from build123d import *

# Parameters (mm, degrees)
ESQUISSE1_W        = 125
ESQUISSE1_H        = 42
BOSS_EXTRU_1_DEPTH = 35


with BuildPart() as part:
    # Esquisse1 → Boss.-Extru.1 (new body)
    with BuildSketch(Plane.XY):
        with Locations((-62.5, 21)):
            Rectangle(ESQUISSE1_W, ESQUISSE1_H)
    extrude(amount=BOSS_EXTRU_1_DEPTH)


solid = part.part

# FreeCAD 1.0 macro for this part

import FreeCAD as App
import Part
import Sketcher
Q = App.Units.Quantity


def add_polygon(sketch, points):
    """Adds a closed chain of lines whose ends are joined by coincident constraints."""
    first, n = sketch.GeometryCount, len(points)
    for a, b in zip(points, points[1:] + points[:1]):
        sketch.addGeometry(Part.LineSegment(App.Vector(*a, 0), App.Vector(*b, 0)), False)
    for i in range(n):
        sketch.addConstraint(Sketcher.Constraint("Coincident", first + i, 2, first + (i + 1) % n, 1))

doc = App.newDocument("Part")
body = doc.addObject("PartDesign::Body", "Body")

sketch1 = body.newObject("Sketcher::SketchObject", "Sketch")
sketch1.AttachmentSupport = (doc.getObject("XY_Plane"), [""])
sketch1.MapMode = "FlatFace"
add_polygon(sketch1, [(-125, 42), (-125, 0), (0, 0), (0, 42)])
sketch1.addConstraint([
    Sketcher.Constraint("Vertical", 0),
    Sketcher.Constraint("Horizontal", 1),
    Sketcher.Constraint("Vertical", 2),
    Sketcher.Constraint("Horizontal", 3),
    Sketcher.Constraint("Coincident", 1, 2, -1, 1),
    Sketcher.Constraint("DistanceX", 1, 1, 1, 2, Q("125 mm")),
    Sketcher.Constraint("DistanceY", 0, 2, 0, 1, Q("42 mm")),
])
pad1 = body.newObject("PartDesign::Pad", "Pad")
pad1.Profile = sketch1
pad1.Length = 35

doc.recompute()
